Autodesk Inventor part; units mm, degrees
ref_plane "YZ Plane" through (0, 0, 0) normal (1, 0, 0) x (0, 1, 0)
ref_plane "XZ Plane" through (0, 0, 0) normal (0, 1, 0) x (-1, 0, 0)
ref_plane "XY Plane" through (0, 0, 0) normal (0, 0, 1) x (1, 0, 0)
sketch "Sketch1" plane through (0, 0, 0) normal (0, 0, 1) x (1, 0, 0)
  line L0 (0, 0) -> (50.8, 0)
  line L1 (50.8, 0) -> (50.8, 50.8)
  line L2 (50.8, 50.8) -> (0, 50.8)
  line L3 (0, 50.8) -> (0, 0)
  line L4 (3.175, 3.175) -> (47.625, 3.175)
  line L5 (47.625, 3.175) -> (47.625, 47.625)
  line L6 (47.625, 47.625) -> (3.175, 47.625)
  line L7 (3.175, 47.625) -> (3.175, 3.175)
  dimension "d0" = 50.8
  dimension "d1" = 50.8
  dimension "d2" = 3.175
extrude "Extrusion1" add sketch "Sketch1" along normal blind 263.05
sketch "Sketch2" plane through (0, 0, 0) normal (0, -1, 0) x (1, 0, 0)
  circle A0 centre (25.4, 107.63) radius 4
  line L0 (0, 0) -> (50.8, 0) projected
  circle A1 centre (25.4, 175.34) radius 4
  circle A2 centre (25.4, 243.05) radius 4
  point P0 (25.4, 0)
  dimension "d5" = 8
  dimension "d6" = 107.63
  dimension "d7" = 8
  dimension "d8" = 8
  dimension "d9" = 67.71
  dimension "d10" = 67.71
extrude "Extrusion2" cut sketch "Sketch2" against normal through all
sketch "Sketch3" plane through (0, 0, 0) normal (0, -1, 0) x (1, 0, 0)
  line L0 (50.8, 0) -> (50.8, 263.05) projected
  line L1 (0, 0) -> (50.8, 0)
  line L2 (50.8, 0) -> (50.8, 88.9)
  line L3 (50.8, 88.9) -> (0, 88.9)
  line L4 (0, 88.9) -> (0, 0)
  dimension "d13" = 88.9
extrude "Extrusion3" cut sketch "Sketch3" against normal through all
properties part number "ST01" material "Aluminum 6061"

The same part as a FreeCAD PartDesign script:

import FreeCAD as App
import Part
import Sketcher
Q = App.Units.Quantity

doc = App.newDocument("Part")
body = doc.addObject("PartDesign::Body", "Body")

# Sketch on XY plane
sketch1 = body.newObject("Sketcher::SketchObject", "Sketch")
sketch1.AttachmentSupport = (doc.getObject("XY_Plane"), [""])
sketch1.MapMode = "FlatFace"
sketch1.addGeometry([
    Part.LineSegment(App.Vector(0, 51, 0), App.Vector(0, 0, 0)),  # 0
    Part.LineSegment(App.Vector(0, 0, 0), App.Vector(51, 0, 0)),  # 1
    Part.LineSegment(App.Vector(51, 0, 0), App.Vector(51, 51, 0)),  # 2
    Part.LineSegment(App.Vector(51, 51, 0), App.Vector(0, 51, 0)),  # 3
    Part.LineSegment(App.Vector(48, 3, 0), App.Vector(3, 3, 0)),  # 4
    Part.LineSegment(App.Vector(3, 3, 0), App.Vector(3, 48, 0)),  # 5
    Part.LineSegment(App.Vector(3, 48, 0), App.Vector(48, 48, 0)),  # 6
    Part.LineSegment(App.Vector(48, 48, 0), App.Vector(48, 3, 0)),  # 7
], False)
sketch1.addConstraint([
    Sketcher.Constraint("Coincident", 0, 2, 1, 1),
    Sketcher.Constraint("Coincident", 1, 2, 2, 1),
    Sketcher.Constraint("Coincident", 2, 2, 3, 1),
    Sketcher.Constraint("Coincident", 3, 2, 0, 1),
    Sketcher.Constraint("Coincident", 4, 2, 5, 1),
    Sketcher.Constraint("Coincident", 5, 2, 6, 1),
    Sketcher.Constraint("Coincident", 6, 2, 7, 1),
    Sketcher.Constraint("Coincident", 7, 2, 4, 1),
    Sketcher.Constraint("Vertical", 0),
    Sketcher.Constraint("Horizontal", 1),
    Sketcher.Constraint("Vertical", 2),
    Sketcher.Constraint("Horizontal", 3),
    Sketcher.Constraint("Horizontal", 4),
    Sketcher.Constraint("Vertical", 5),
    Sketcher.Constraint("Horizontal", 6),
    Sketcher.Constraint("Vertical", 7),
    Sketcher.Constraint("Coincident", 0, 2, -1, 1),
    Sketcher.Constraint("Equal", 3, 0),
    Sketcher.Constraint("Equal", 6, 5),
    Sketcher.Constraint("DistanceX", 1, 1, 1, 2, Q("2 in")),
    Sketcher.Constraint("DistanceX", -1, 1, 4, 2, Q("0.125 in")),
    Sketcher.Constraint("DistanceY", -1, 1, 4, 2, Q("0.125 in")),
    Sketcher.Constraint("DistanceY", 5, 2, 3, 2, Q("0.125 in")),
])
pad1 = body.newObject("PartDesign::Pad", "Pad")
pad1.Profile = sketch1
pad1.Length = Q("10.3562992 in")

# Sketch on XZ plane
sketch2 = body.newObject("Sketcher::SketchObject", "Sketch001")
sketch2.AttachmentSupport = (doc.getObject("XZ_Plane"), [""])
sketch2.MapMode = "FlatFace"
sketch2.addGeometry([
    Part.Circle(App.Vector(25.4, 107.6, 0), App.Vector(0, 0, 1), 4),
    Part.Circle(App.Vector(25.4, 175.3, 0), App.Vector(0, 0, 1), 4),
    Part.Circle(App.Vector(25.4, 243.1, 0), App.Vector(0, 0, 1), 4),
], False)
sketch2.addConstraint([
    Sketcher.Constraint("Equal", 0, 1),
    Sketcher.Constraint("Equal", 1, 2),
    Sketcher.Constraint("Vertical", 0, 3, 1, 3),
    Sketcher.Constraint("Vertical", 1, 3, 2, 3),
    Sketcher.Constraint("Diameter", 0, 8.0),
    Sketcher.Constraint("DistanceX", -1, 1, 0, 3, Q("1 in")),
    Sketcher.Constraint("DistanceY", -1, 1, 0, 3, Q("4.2374 in")),
    Sketcher.Constraint("DistanceY", 0, 3, 1, 3, 67.71),
    Sketcher.Constraint("DistanceY", 1, 3, 2, 3, 67.71),
])
pocket1 = body.newObject("PartDesign::Pocket", "Pocket")
pocket1.Profile = sketch2
pocket1.Type = "ThroughAll"

# Sketch on XZ plane
sketch3 = body.newObject("Sketcher::SketchObject", "Sketch002")
sketch3.AttachmentSupport = (doc.getObject("XZ_Plane"), [""])
sketch3.MapMode = "FlatFace"
sketch3.addGeometry([
    Part.LineSegment(App.Vector(0, 0, 0), App.Vector(51, 0, 0)),
    Part.LineSegment(App.Vector(51, 0, 0), App.Vector(51, 89, 0)),
    Part.LineSegment(App.Vector(51, 89, 0), App.Vector(0, 89, 0)),
    Part.LineSegment(App.Vector(0, 89, 0), App.Vector(0, 0, 0)),
], False)
sketch3.addConstraint([
    Sketcher.Constraint("Coincident", 0, 2, 1, 1),
    Sketcher.Constraint("Coincident", 1, 2, 2, 1),
    Sketcher.Constraint("Coincident", 2, 2, 3, 1),
    Sketcher.Constraint("Coincident", 3, 2, 0, 1),
    Sketcher.Constraint("Horizontal", 0),
    Sketcher.Constraint("Vertical", 1),
    Sketcher.Constraint("Horizontal", 2),
    Sketcher.Constraint("Vertical", 3),
    Sketcher.Constraint("Coincident", 3, 2, -1, 1),
    Sketcher.Constraint("DistanceY", 1, 1, 1, 2, Q("3.5 in")),
    Sketcher.Constraint("DistanceX", 0, 1, 0, 2, Q("2 in")),
])
pocket2 = body.newObject("PartDesign::Pocket", "Pocket001")
pocket2.Profile = sketch3
pocket2.Type = "ThroughAll"

doc.recompute()
